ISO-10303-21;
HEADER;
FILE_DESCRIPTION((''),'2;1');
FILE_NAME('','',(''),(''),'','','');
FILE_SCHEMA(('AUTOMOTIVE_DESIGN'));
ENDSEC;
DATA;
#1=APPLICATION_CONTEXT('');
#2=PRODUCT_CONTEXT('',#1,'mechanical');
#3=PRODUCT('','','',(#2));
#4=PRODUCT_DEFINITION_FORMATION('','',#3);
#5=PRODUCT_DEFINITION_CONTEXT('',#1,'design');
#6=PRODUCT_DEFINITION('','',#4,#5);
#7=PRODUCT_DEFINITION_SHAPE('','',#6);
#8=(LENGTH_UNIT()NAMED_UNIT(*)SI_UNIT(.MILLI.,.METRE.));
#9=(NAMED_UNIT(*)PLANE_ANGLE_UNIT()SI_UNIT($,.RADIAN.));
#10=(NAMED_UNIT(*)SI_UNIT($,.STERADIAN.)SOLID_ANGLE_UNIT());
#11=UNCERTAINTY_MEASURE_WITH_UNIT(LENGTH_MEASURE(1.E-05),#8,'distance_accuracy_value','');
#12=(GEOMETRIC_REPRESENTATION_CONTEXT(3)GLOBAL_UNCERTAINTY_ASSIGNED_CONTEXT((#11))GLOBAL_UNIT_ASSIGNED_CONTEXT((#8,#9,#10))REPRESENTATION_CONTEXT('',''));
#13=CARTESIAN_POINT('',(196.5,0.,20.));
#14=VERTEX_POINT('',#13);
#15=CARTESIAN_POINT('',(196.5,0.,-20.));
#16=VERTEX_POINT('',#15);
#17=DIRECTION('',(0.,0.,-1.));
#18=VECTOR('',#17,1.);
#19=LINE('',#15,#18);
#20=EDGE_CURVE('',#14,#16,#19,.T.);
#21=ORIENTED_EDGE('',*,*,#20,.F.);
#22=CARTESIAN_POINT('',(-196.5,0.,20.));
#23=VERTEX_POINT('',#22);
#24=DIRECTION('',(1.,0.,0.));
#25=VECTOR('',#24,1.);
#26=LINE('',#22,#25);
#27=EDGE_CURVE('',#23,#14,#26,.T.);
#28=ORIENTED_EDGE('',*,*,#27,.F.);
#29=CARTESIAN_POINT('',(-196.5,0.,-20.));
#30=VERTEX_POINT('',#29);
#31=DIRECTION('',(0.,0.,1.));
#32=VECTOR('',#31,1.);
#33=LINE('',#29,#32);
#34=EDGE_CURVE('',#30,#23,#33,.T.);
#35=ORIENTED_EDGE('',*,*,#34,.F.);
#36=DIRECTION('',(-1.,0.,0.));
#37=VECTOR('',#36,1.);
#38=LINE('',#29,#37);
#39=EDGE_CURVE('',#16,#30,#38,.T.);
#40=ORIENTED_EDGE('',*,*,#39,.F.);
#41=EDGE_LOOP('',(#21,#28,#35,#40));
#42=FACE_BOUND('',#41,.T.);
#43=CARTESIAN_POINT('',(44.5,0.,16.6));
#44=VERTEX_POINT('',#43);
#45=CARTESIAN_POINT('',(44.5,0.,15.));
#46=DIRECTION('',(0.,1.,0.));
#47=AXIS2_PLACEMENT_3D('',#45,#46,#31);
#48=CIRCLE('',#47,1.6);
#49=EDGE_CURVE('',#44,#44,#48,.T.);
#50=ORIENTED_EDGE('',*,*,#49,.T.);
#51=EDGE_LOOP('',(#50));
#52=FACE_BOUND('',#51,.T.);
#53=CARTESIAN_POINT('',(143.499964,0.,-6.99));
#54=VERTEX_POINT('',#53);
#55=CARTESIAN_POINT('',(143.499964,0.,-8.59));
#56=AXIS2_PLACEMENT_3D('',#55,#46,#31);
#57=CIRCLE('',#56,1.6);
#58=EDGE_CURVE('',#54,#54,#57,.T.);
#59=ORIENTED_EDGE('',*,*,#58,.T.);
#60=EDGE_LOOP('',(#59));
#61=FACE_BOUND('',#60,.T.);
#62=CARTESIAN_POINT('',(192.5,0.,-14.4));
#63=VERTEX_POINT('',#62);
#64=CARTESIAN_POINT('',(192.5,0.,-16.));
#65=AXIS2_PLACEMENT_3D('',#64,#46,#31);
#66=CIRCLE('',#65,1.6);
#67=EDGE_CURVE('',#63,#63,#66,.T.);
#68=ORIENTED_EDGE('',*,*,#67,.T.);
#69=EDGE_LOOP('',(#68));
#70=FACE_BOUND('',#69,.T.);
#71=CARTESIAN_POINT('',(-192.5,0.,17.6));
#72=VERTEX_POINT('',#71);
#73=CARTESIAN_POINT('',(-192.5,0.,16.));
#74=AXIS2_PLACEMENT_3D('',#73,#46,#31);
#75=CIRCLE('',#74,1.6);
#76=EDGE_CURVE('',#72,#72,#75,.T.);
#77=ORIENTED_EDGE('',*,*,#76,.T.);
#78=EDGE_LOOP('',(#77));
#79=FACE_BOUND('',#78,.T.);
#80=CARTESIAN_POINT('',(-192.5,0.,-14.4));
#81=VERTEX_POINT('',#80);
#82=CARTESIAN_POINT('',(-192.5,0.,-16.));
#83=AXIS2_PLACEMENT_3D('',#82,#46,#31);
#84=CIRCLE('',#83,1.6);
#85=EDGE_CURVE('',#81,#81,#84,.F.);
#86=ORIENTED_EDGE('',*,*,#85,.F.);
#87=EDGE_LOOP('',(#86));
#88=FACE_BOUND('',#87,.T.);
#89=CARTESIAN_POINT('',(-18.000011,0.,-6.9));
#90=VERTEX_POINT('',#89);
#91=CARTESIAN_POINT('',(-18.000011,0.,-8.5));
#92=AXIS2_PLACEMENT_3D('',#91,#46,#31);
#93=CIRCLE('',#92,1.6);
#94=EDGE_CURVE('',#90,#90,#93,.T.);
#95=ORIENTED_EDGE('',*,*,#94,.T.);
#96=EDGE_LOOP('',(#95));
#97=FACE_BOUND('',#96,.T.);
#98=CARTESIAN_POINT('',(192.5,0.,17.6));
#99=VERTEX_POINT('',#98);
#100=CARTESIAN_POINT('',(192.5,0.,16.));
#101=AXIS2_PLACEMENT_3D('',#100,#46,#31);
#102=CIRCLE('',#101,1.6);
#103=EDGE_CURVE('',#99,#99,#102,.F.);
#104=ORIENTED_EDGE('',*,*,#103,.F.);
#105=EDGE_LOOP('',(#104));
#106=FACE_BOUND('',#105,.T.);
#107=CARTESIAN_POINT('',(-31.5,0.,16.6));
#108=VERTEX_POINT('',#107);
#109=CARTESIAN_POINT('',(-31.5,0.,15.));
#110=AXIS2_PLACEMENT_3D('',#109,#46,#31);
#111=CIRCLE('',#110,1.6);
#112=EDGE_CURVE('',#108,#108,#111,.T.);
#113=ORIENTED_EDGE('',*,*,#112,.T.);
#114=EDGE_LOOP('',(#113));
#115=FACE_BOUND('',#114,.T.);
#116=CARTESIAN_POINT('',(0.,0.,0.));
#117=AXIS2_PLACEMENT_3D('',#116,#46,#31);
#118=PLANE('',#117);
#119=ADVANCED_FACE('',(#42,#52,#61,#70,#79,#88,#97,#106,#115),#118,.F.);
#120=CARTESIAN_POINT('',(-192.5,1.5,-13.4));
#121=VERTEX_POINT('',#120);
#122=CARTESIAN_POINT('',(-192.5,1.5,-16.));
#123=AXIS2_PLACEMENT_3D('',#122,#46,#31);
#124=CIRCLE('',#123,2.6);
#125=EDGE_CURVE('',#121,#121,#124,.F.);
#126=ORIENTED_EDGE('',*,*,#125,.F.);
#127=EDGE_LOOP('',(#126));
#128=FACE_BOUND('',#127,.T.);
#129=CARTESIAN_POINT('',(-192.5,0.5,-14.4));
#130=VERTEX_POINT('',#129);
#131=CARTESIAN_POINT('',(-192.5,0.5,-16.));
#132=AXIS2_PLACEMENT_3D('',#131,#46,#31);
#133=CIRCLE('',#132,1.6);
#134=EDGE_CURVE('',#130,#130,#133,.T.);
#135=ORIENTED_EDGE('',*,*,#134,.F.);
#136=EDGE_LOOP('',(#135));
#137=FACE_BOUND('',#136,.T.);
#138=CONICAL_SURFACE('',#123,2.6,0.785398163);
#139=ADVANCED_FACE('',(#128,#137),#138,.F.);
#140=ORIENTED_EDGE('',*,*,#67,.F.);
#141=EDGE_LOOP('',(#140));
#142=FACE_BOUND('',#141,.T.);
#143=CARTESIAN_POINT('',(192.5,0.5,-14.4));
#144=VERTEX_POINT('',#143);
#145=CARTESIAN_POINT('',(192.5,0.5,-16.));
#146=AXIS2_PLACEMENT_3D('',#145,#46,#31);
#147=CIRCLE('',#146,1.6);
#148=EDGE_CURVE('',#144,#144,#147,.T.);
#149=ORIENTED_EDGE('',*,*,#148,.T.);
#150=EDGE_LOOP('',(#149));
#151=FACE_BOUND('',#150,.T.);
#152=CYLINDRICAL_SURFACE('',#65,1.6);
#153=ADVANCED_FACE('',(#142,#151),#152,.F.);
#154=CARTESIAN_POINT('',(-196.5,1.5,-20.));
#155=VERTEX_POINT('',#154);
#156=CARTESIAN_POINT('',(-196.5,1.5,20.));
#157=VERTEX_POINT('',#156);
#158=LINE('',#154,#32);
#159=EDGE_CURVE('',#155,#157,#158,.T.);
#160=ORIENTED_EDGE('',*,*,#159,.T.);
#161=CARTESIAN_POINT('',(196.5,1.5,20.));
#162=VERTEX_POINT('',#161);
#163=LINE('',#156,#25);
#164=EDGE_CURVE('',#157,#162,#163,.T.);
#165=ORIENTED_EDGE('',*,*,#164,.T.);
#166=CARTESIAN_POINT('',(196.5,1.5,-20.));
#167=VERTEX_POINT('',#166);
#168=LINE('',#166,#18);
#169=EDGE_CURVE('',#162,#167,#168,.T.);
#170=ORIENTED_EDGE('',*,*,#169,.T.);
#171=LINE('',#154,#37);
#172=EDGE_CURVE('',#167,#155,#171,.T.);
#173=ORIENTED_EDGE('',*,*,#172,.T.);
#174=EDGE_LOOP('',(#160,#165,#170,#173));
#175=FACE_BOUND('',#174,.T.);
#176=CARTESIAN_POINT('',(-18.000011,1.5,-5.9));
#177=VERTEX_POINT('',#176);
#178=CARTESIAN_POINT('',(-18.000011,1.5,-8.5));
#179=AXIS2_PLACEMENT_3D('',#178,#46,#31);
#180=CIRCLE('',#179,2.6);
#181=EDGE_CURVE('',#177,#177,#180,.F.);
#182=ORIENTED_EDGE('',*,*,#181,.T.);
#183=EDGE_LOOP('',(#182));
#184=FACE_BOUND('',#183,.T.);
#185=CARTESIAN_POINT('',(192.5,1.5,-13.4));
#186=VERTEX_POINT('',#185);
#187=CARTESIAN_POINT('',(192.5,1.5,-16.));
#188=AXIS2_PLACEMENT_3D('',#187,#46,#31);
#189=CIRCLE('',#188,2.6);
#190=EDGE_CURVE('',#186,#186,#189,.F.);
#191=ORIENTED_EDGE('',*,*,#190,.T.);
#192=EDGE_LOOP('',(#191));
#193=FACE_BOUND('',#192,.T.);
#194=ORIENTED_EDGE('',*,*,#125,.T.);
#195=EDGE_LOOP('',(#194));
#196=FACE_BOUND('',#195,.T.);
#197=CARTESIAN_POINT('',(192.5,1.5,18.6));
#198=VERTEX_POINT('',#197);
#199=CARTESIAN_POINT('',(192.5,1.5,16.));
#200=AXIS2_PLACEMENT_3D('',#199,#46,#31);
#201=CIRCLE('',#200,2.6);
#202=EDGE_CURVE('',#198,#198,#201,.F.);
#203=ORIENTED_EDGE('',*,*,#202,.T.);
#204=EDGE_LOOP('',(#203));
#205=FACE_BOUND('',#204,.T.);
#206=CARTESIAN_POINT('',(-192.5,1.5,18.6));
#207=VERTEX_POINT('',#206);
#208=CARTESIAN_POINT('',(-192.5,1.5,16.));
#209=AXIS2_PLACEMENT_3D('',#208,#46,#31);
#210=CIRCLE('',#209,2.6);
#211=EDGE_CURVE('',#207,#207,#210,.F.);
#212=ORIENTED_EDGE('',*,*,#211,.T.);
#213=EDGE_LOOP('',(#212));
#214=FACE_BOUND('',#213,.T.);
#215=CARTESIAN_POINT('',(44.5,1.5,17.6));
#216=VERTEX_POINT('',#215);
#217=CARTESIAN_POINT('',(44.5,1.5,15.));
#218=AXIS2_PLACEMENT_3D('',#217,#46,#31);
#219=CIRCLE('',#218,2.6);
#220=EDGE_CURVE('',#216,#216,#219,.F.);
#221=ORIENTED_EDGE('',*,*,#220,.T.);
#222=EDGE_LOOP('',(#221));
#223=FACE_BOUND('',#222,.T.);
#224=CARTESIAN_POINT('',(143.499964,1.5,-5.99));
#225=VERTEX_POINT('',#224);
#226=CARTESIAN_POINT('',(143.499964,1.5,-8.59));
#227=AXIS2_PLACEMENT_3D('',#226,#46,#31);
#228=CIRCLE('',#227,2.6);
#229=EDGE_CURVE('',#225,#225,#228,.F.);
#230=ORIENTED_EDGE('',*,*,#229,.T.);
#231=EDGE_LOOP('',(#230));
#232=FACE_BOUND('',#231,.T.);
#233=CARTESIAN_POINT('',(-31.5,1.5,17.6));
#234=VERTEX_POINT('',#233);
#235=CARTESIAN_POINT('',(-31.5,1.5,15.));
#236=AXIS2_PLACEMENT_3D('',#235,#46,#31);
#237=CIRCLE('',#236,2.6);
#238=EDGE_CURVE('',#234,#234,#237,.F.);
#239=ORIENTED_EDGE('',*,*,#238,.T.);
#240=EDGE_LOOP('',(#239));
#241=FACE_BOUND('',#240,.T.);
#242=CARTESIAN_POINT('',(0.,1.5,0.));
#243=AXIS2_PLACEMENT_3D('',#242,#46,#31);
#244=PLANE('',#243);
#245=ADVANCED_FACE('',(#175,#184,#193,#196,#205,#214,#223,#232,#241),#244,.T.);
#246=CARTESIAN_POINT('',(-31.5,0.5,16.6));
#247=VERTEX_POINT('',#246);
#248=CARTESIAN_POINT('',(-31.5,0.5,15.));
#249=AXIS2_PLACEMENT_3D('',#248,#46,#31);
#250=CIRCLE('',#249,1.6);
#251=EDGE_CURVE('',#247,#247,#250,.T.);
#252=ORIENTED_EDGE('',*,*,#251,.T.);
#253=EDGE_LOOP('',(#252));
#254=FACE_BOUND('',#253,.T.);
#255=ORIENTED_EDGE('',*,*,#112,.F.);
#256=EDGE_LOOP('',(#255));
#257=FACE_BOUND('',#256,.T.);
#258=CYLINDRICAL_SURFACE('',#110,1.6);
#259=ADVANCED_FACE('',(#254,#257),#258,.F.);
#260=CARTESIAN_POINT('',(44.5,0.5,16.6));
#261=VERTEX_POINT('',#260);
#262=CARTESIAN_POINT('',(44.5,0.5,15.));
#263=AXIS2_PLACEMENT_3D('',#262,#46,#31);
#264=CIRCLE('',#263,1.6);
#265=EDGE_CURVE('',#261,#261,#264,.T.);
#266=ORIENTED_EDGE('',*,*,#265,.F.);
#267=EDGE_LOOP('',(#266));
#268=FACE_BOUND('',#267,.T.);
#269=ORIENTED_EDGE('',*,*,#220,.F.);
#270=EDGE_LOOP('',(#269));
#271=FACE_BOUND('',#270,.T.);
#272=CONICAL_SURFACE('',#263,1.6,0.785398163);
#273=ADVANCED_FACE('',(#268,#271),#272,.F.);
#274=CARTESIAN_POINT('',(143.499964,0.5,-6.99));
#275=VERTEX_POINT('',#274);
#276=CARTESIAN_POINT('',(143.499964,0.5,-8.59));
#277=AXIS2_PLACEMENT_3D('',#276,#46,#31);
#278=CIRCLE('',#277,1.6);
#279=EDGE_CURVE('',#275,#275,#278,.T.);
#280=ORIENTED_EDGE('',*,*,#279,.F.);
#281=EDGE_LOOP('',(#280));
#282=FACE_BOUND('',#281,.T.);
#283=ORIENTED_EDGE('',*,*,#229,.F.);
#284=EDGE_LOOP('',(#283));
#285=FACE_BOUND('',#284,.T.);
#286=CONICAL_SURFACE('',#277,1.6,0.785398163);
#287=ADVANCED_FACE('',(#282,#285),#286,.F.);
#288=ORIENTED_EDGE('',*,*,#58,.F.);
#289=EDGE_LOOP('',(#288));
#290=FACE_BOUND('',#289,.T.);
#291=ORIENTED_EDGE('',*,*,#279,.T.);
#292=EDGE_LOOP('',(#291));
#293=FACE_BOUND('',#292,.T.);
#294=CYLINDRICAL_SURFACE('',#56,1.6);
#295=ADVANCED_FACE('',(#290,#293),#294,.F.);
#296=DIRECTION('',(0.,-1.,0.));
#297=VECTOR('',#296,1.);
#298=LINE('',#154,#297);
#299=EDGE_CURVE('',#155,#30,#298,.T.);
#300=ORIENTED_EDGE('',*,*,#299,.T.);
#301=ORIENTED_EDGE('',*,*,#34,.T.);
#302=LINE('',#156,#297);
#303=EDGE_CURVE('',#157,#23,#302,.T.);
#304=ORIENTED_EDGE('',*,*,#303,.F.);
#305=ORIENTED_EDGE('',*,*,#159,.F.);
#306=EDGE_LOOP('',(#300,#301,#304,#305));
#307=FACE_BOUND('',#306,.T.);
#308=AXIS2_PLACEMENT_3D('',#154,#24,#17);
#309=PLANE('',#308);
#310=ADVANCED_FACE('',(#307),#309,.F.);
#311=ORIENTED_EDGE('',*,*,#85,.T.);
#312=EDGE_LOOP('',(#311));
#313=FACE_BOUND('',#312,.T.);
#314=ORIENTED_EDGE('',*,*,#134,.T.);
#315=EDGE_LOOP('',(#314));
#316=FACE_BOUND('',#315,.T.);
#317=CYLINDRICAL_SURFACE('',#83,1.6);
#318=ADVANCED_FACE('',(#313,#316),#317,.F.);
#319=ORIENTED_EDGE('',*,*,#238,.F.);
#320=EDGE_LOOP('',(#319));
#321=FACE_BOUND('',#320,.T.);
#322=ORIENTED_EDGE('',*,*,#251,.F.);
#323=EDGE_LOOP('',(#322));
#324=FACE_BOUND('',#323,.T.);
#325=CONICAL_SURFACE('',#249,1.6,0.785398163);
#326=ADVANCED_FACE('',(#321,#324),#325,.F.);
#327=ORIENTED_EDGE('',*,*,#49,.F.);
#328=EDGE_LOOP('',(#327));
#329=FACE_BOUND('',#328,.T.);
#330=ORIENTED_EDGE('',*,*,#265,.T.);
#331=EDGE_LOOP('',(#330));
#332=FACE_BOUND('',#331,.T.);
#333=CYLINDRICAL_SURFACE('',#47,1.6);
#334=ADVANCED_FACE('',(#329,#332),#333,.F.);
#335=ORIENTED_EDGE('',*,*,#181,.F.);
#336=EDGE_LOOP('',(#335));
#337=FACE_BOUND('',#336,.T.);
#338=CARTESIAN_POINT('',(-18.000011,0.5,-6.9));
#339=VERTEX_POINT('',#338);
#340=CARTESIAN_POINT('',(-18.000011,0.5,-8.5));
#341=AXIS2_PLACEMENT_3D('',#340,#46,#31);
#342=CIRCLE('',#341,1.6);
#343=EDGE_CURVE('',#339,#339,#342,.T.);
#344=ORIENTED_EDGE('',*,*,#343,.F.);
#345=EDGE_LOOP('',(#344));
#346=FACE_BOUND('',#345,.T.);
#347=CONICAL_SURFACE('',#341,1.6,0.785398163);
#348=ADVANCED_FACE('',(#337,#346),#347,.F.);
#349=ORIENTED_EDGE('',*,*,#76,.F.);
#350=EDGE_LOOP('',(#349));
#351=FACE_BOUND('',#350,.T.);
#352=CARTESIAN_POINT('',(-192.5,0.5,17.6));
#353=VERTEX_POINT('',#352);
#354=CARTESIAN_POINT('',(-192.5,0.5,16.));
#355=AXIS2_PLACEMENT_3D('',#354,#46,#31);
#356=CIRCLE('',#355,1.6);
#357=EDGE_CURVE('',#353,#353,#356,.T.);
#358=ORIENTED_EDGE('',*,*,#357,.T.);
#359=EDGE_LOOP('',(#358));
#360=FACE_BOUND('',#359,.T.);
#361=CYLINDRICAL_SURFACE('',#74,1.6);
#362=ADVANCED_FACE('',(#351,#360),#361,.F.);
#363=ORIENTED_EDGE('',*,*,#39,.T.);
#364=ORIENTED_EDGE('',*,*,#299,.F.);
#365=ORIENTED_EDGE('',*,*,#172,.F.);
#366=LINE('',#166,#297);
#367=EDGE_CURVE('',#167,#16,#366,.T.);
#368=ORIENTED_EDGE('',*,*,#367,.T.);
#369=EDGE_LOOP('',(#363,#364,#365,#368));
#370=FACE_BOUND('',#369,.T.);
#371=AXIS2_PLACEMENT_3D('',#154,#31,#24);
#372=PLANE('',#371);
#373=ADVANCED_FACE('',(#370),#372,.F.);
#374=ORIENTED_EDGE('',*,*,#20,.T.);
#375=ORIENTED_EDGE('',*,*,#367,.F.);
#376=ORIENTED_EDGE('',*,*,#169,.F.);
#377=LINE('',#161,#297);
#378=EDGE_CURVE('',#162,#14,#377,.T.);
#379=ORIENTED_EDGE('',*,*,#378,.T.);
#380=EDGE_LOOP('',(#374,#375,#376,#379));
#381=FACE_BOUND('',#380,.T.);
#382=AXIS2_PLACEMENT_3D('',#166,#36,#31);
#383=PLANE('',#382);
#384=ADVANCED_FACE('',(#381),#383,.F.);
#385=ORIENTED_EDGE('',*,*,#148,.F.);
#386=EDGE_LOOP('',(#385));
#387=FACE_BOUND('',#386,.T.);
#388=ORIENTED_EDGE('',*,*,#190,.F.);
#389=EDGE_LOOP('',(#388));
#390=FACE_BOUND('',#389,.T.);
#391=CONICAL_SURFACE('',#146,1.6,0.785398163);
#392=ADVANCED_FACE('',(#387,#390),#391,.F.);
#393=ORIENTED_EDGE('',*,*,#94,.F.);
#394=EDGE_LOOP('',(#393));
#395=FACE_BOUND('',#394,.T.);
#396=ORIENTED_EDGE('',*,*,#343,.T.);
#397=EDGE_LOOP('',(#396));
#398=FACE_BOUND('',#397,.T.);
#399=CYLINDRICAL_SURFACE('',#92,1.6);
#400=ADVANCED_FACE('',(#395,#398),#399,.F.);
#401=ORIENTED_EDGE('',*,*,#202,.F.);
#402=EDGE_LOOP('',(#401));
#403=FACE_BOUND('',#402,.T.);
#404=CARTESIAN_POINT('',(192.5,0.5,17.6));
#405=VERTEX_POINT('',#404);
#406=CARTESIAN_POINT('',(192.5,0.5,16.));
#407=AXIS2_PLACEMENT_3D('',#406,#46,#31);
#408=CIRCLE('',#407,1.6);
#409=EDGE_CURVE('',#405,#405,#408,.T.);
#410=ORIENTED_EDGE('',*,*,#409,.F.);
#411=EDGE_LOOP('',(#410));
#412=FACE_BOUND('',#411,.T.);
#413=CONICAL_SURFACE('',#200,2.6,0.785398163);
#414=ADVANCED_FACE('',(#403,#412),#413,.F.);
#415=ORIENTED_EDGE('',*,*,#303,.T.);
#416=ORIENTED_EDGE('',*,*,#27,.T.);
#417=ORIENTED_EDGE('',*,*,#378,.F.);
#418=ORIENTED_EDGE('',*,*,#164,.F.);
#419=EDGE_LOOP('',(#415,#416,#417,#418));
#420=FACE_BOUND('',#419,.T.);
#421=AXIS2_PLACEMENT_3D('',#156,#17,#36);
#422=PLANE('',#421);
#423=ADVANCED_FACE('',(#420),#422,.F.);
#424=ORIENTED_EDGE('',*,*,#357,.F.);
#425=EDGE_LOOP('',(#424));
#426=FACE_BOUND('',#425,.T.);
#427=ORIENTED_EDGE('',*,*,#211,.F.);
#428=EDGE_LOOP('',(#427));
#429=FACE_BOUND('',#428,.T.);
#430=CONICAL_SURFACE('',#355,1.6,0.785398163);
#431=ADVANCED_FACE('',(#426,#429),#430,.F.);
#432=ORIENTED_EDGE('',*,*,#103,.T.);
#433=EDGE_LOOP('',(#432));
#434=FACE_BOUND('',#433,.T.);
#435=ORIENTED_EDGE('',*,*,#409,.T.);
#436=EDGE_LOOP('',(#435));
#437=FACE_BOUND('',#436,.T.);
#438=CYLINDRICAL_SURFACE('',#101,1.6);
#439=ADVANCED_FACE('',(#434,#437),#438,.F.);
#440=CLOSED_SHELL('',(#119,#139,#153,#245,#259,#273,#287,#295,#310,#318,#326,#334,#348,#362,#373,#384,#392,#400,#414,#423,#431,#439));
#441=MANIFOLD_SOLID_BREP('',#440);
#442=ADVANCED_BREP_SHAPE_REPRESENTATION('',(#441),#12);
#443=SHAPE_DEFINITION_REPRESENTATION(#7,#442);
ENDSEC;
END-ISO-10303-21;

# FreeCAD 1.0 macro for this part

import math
import FreeCAD as App
import Part
import Sketcher
Q = App.Units.Quantity


def edges_at(feature, points):
    """Names of the edges that pass closest to the given points."""
    edges = feature.Shape.Edges
    near = lambda p: min(range(len(edges)), key=lambda i: edges[i].distToShape(Part.Vertex(*p))[0])
    return sorted({f"Edge{near(p) + 1}" for p in points})


def add_polygon(sketch, points):
    """Adds a closed chain of lines whose ends are joined by coincident constraints."""
    first, n = sketch.GeometryCount, len(points)
    for a, b in zip(points, points[1:] + points[:1]):
        sketch.addGeometry(Part.LineSegment(App.Vector(*a, 0), App.Vector(*b, 0)), False)
    for i in range(n):
        sketch.addConstraint(Sketcher.Constraint("Coincident", first + i, 2, first + (i + 1) % n, 1))

doc = App.newDocument("Part")
body = doc.addObject("PartDesign::Body", "Body")

# Sketch on XZ plane
sketch1 = body.newObject("Sketcher::SketchObject", "Sketch")
sketch1.AttachmentSupport = (doc.getObject("XZ_Plane"), [""])
sketch1.MapMode = "FlatFace"
add_polygon(sketch1, [(-196.5, -20), (-196.5, 20), (196.5, 20), (196.5, -20)])  # lines 0-3
sketch1.addConstraint(Sketcher.Constraint("Vertical", 0))
sketch1.addConstraint(Sketcher.Constraint("Horizontal", 1))
sketch1.addConstraint(Sketcher.Constraint("Vertical", 2))
sketch1.addConstraint(Sketcher.Constraint("Horizontal", 3))
sketch1.addConstraint(Sketcher.Constraint("Symmetric", 0, 2, 2, 2, -1, 1))
sketch1.addConstraint(Sketcher.Constraint("DistanceX", 1, 1, 1, 2, Q("393 mm")))
sketch1.addConstraint(Sketcher.Constraint("DistanceY", 0, 1, 0, 2, Q("40 mm")))
pad1 = body.newObject("PartDesign::Pad", "Pad")
pad1.Profile = sketch1
pad1.Length = 1.5
pad1.Reversed = True

# Sketch on XZ plane
sketch2 = body.newObject("Sketcher::SketchObject", "Sketch001")
sketch2.AttachmentSupport = (doc.getObject("XZ_Plane"), [""])
sketch2.MapMode = "FlatFace"
sketch2.AttachmentOffset = App.Placement(App.Vector(0, 0, -1.5), App.Rotation())
sketch2.addGeometry(Part.Circle(App.Vector(-192.5, -16, 0), App.Vector(0, 0, 1), 1.6), False)
sketch2.addGeometry(Part.Circle(App.Vector(-192.5, 16, 0), App.Vector(0, 0, 1), 1.6), False)
sketch2.addGeometry(Part.Circle(App.Vector(192.5, 16, 0), App.Vector(0, 0, 1), 1.6), False)
sketch2.addGeometry(Part.Circle(App.Vector(192.5, -16, 0), App.Vector(0, 0, 1), 1.6), False)
sketch2.addGeometry(Part.Circle(App.Vector(44.5, 15, 0), App.Vector(0, 0, 1), 1.6), False)
sketch2.addGeometry(Part.ArcOfCircle(Part.Circle(App.Vector(-18.000011, -8.5, 0), App.Vector(0, 0, 1), 1.6), math.radians(-90), math.radians(0)), False)
sketch2.addGeometry(Part.ArcOfCircle(Part.Circle(App.Vector(-18.000011, -8.5, 0), App.Vector(0, 0, 1), 1.6), math.radians(90), math.radians(270)), False)
sketch2.addGeometry(Part.ArcOfCircle(Part.Circle(App.Vector(-18.000011, -8.5, 0), App.Vector(0, 0, 1), 1.6), math.radians(0), math.radians(90)), False)
sketch2.addGeometry(Part.ArcOfCircle(Part.Circle(App.Vector(143.499964, -8.59, 0), App.Vector(0, 0, 1), 1.6), math.radians(-89.999404), math.radians(0)), False)
sketch2.addGeometry(Part.ArcOfCircle(Part.Circle(App.Vector(143.499964, -8.59, 0), App.Vector(0, 0, 1), 1.6), math.radians(90.000596), math.radians(270.000596)), False)
sketch2.addGeometry(Part.ArcOfCircle(Part.Circle(App.Vector(143.499964, -8.59, 0), App.Vector(0, 0, 1), 1.6), math.radians(0), math.radians(90.000596)), False)
sketch2.addGeometry(Part.Circle(App.Vector(-31.5, 15, 0), App.Vector(0, 0, 1), 1.6), False)
sketch2.addConstraint(Sketcher.Constraint("Tangent", 5, 1, 6, 2))
sketch2.addConstraint(Sketcher.Constraint("Tangent", 6, 1, 7, 2))
sketch2.addConstraint(Sketcher.Constraint("Tangent", 7, 1, 5, 2))
sketch2.addConstraint(Sketcher.Constraint("Tangent", 8, 1, 9, 2))
sketch2.addConstraint(Sketcher.Constraint("Tangent", 9, 1, 10, 2))
sketch2.addConstraint(Sketcher.Constraint("Tangent", 10, 1, 8, 2))
sketch2.addConstraint(Sketcher.Constraint("Equal", 0, 1))
sketch2.addConstraint(Sketcher.Constraint("Equal", 1, 2))
sketch2.addConstraint(Sketcher.Constraint("Equal", 2, 3))
sketch2.addConstraint(Sketcher.Constraint("Equal", 3, 4))
sketch2.addConstraint(Sketcher.Constraint("Equal", 4, 5))
sketch2.addConstraint(Sketcher.Constraint("Equal", 7, 8))
sketch2.addConstraint(Sketcher.Constraint("Equal", 10, 11))
sketch2.addConstraint(Sketcher.Constraint("Symmetric", 0, 3, 2, 3, -1, 1))
sketch2.addConstraint(Sketcher.Constraint("Symmetric", 1, 3, 3, 3, -1, 1))
sketch2.addConstraint(Sketcher.Constraint("Symmetric", 1, 3, 2, 3, -2))
sketch2.addConstraint(Sketcher.Constraint("Horizontal", 4, 3, 11, 3))
sketch2.addConstraint(Sketcher.Constraint("Horizontal", 6, 3, 7, 1))
sketch2.addConstraint(Sketcher.Constraint("Horizontal", 9, 3, 10, 1))
sketch2.addConstraint(Sketcher.Constraint("Vertical", 7, 3, 5, 1))
sketch2.addConstraint(Sketcher.Constraint("Vertical", 5, 1, 6, 1))
sketch2.addConstraint(Sketcher.Constraint("Diameter", 0, Q("3.2 mm")))
sketch2.addConstraint(Sketcher.Constraint("DistanceY", 0, 3, -1, 1, Q("16 mm")))
sketch2.addConstraint(Sketcher.Constraint("DistanceY", -1, 1, 4, 3, Q("15 mm")))
sketch2.addConstraint(Sketcher.Constraint("DistanceX", 1, 3, 2, 3, Q("385 mm")))
sketch2.addConstraint(Sketcher.Constraint("DistanceX", 4, 3, 2, 3, Q("148 mm")))
sketch2.addConstraint(Sketcher.Constraint("DistanceX", 11, 3, 4, 3, Q("76 mm")))
sketch2.addConstraint(Sketcher.Constraint("DistanceY", 5, 3, -1, 1, Q("8.5 mm")))
sketch2.addConstraint(Sketcher.Constraint("DistanceY", 8, 3, -1, 1, Q("8.59 mm")))
sketch2.addConstraint(Sketcher.Constraint("DistanceX", 5, 3, -1, 1, Q("18.000011 mm")))
sketch2.addConstraint(Sketcher.Constraint("DistanceX", -1, 1, 8, 1, Q("143.499981 mm")))
sketch2.addConstraint(Sketcher.Constraint("DistanceX", -1, 1, 8, 3, Q("143.499964 mm")))
sketch2.addConstraint(Sketcher.Constraint("DistanceX", -1, 1, 9, 1, Q("143.499947 mm")))
pocket1 = body.newObject("PartDesign::Pocket", "Pocket")
pocket1.Profile = sketch2
pocket1.Type = "ThroughAll"
pocket1.Reversed = True
doc.recompute()

chamfer = body.newObject("PartDesign::Chamfer", "Chamfer")
chamfer.Base = (pocket1, edges_at(pocket1, [
    (44.5, 1.5, 13.4),
    (192.5, 1.5, -17.6),
    (192.5, 1.5, 14.4),
    (-192.5, 1.5, 14.4),
    (-16.869, 1.5, -9.631),
    (141.9, 1.5, -8.59),
    (-31.5, 1.5, 13.4),
    (-192.5, 1.5, -17.6),
]))
chamfer.Size = 1

doc.recompute()
